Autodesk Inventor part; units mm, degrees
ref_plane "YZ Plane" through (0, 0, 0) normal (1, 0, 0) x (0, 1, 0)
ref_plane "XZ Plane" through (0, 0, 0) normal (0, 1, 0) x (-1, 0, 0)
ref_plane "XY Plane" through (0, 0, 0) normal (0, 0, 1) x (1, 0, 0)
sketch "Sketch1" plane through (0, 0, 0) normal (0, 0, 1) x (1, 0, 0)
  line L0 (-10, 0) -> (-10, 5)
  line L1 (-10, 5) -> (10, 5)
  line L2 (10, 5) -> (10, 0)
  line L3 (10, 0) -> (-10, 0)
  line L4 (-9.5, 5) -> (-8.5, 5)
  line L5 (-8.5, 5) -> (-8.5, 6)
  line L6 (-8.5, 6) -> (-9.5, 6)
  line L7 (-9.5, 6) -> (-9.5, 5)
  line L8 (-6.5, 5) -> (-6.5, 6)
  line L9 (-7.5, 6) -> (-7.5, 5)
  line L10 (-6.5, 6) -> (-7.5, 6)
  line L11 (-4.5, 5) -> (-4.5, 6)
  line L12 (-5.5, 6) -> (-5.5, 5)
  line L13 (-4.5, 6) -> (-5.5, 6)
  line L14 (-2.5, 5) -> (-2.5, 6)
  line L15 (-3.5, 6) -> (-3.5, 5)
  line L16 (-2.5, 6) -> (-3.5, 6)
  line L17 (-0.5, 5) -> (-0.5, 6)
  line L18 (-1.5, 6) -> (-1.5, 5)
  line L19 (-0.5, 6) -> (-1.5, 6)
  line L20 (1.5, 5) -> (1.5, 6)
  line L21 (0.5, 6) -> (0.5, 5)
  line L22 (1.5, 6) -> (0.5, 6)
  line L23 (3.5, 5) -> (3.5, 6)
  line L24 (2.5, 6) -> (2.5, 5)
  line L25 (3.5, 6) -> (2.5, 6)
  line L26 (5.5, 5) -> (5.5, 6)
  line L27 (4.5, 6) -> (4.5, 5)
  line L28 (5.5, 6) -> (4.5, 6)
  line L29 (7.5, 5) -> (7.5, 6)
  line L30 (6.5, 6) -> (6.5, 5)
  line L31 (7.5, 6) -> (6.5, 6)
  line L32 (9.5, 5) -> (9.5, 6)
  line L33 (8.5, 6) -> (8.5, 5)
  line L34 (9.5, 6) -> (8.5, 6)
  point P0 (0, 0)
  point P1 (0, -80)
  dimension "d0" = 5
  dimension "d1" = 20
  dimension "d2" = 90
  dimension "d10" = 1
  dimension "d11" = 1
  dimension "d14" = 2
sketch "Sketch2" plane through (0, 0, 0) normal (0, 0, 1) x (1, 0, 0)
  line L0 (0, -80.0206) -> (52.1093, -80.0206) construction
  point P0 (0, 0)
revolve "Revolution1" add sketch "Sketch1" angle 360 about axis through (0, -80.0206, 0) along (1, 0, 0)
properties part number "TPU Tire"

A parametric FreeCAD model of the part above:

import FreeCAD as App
import Part
import Sketcher
from FreeCAD import Vector

doc = App.newDocument("Part")
body = doc.addObject("PartDesign::Body", "Body")

# Sketch on XY plane
sketch1 = doc.addObject("Sketcher::SketchObject", "Sketch")
body.addObject(sketch1)
sketch1.AttachmentSupport = (doc.XY_Plane, [""])
sketch1.MapMode = "FlatFace"
sketch1.addGeometry([
    Part.LineSegment(Vector(-10, 5, 0), Vector(-10, 0, 0)),  # 0
    Part.LineSegment(Vector(-10, 0, 0), Vector(10, 0, 0)),  # 1
    Part.LineSegment(Vector(10, 0, 0), Vector(10, 5, 0)),  # 2
    Part.LineSegment(Vector(10, 5, 0), Vector(9.5, 5, 0)),  # 3
    Part.LineSegment(Vector(9.5, 5, 0), Vector(9.5, 6, 0)),  # 4
    Part.LineSegment(Vector(9.5, 6, 0), Vector(8.5, 6, 0)),  # 5
    Part.LineSegment(Vector(8.5, 6, 0), Vector(8.5, 5, 0)),  # 6
    Part.LineSegment(Vector(8.5, 5, 0), Vector(7.5, 5, 0)),  # 7
    Part.LineSegment(Vector(7.5, 5, 0), Vector(7.5, 6, 0)),  # 8
    Part.LineSegment(Vector(7.5, 6, 0), Vector(6.5, 6, 0)),  # 9
    Part.LineSegment(Vector(6.5, 6, 0), Vector(6.5, 5, 0)),  # 10
    Part.LineSegment(Vector(6.5, 5, 0), Vector(5.5, 5, 0)),  # 11
    Part.LineSegment(Vector(5.5, 5, 0), Vector(5.5, 6, 0)),  # 12
    Part.LineSegment(Vector(5.5, 6, 0), Vector(4.5, 6, 0)),  # 13
    Part.LineSegment(Vector(4.5, 6, 0), Vector(4.5, 5, 0)),  # 14
    Part.LineSegment(Vector(4.5, 5, 0), Vector(3.5, 5, 0)),  # 15
    Part.LineSegment(Vector(3.5, 5, 0), Vector(3.5, 6, 0)),  # 16
    Part.LineSegment(Vector(3.5, 6, 0), Vector(2.5, 6, 0)),  # 17
    Part.LineSegment(Vector(2.5, 6, 0), Vector(2.5, 5, 0)),  # 18
    Part.LineSegment(Vector(2.5, 5, 0), Vector(1.5, 5, 0)),  # 19
    Part.LineSegment(Vector(1.5, 5, 0), Vector(1.5, 6, 0)),  # 20
    Part.LineSegment(Vector(1.5, 6, 0), Vector(0.5, 6, 0)),  # 21
    Part.LineSegment(Vector(0.5, 6, 0), Vector(0.5, 5, 0)),  # 22
    Part.LineSegment(Vector(0.5, 5, 0), Vector(-0.5, 5, 0)),  # 23
    Part.LineSegment(Vector(-0.5, 5, 0), Vector(-0.5, 6, 0)),  # 24
    Part.LineSegment(Vector(-0.5, 6, 0), Vector(-1.5, 6, 0)),  # 25
    Part.LineSegment(Vector(-1.5, 6, 0), Vector(-1.5, 5, 0)),  # 26
    Part.LineSegment(Vector(-1.5, 5, 0), Vector(-2.5, 5, 0)),  # 27
    Part.LineSegment(Vector(-2.5, 5, 0), Vector(-2.5, 6, 0)),  # 28
    Part.LineSegment(Vector(-2.5, 6, 0), Vector(-3.5, 6, 0)),  # 29
    Part.LineSegment(Vector(-3.5, 6, 0), Vector(-3.5, 5, 0)),  # 30
    Part.LineSegment(Vector(-3.5, 5, 0), Vector(-4.5, 5, 0)),  # 31
    Part.LineSegment(Vector(-4.5, 5, 0), Vector(-4.5, 6, 0)),  # 32
    Part.LineSegment(Vector(-4.5, 6, 0), Vector(-5.5, 6, 0)),  # 33
    Part.LineSegment(Vector(-5.5, 6, 0), Vector(-5.5, 5, 0)),  # 34
    Part.LineSegment(Vector(-5.5, 5, 0), Vector(-6.5, 5, 0)),  # 35
    Part.LineSegment(Vector(-6.5, 5, 0), Vector(-6.5, 6, 0)),  # 36
    Part.LineSegment(Vector(-6.5, 6, 0), Vector(-7.5, 6, 0)),  # 37
    Part.LineSegment(Vector(-7.5, 6, 0), Vector(-7.5, 5, 0)),  # 38
    Part.LineSegment(Vector(-7.5, 5, 0), Vector(-8.5, 5, 0)),  # 39
    Part.LineSegment(Vector(-8.5, 5, 0), Vector(-8.5, 6, 0)),  # 40
    Part.LineSegment(Vector(-8.5, 6, 0), Vector(-9.5, 6, 0)),  # 41
    Part.LineSegment(Vector(-9.5, 6, 0), Vector(-9.5, 5, 0)),  # 42
    Part.LineSegment(Vector(-9.5, 5, 0), Vector(-10, 5, 0)),  # 43
], False)
sketch1.addGeometry(Part.LineSegment(Vector(-10, -80, 0), Vector(10, -80, 0)), True)  # axis
sketch1.addConstraint([
    Sketcher.Constraint("Coincident", 0, 2, 1, 1),
    Sketcher.Constraint("Coincident", 1, 2, 2, 1),
    Sketcher.Constraint("Coincident", 2, 2, 3, 1),
    Sketcher.Constraint("Coincident", 3, 2, 4, 1),
    Sketcher.Constraint("Coincident", 4, 2, 5, 1),
    Sketcher.Constraint("Coincident", 5, 2, 6, 1),
    Sketcher.Constraint("Coincident", 6, 2, 7, 1),
    Sketcher.Constraint("Coincident", 7, 2, 8, 1),
    Sketcher.Constraint("Coincident", 8, 2, 9, 1),
    Sketcher.Constraint("Coincident", 9, 2, 10, 1),
    Sketcher.Constraint("Coincident", 10, 2, 11, 1),
    Sketcher.Constraint("Coincident", 11, 2, 12, 1),
    Sketcher.Constraint("Coincident", 12, 2, 13, 1),
    Sketcher.Constraint("Coincident", 13, 2, 14, 1),
    Sketcher.Constraint("Coincident", 14, 2, 15, 1),
    Sketcher.Constraint("Coincident", 15, 2, 16, 1),
    Sketcher.Constraint("Coincident", 16, 2, 17, 1),
    Sketcher.Constraint("Coincident", 17, 2, 18, 1),
    Sketcher.Constraint("Coincident", 18, 2, 19, 1),
    Sketcher.Constraint("Coincident", 19, 2, 20, 1),
    Sketcher.Constraint("Coincident", 20, 2, 21, 1),
    Sketcher.Constraint("Coincident", 21, 2, 22, 1),
    Sketcher.Constraint("Coincident", 22, 2, 23, 1),
    Sketcher.Constraint("Coincident", 23, 2, 24, 1),
    Sketcher.Constraint("Coincident", 24, 2, 25, 1),
    Sketcher.Constraint("Coincident", 25, 2, 26, 1),
    Sketcher.Constraint("Coincident", 26, 2, 27, 1),
    Sketcher.Constraint("Coincident", 27, 2, 28, 1),
    Sketcher.Constraint("Coincident", 28, 2, 29, 1),
    Sketcher.Constraint("Coincident", 29, 2, 30, 1),
    Sketcher.Constraint("Coincident", 30, 2, 31, 1),
    Sketcher.Constraint("Coincident", 31, 2, 32, 1),
    Sketcher.Constraint("Coincident", 32, 2, 33, 1),
    Sketcher.Constraint("Coincident", 33, 2, 34, 1),
    Sketcher.Constraint("Coincident", 34, 2, 35, 1),
    Sketcher.Constraint("Coincident", 35, 2, 36, 1),
    Sketcher.Constraint("Coincident", 36, 2, 37, 1),
    Sketcher.Constraint("Coincident", 37, 2, 38, 1),
    Sketcher.Constraint("Coincident", 38, 2, 39, 1),
    Sketcher.Constraint("Coincident", 39, 2, 40, 1),
    Sketcher.Constraint("Coincident", 40, 2, 41, 1),
    Sketcher.Constraint("Coincident", 41, 2, 42, 1),
    Sketcher.Constraint("Coincident", 42, 2, 43, 1),
    Sketcher.Constraint("Coincident", 43, 2, 0, 1),
    Sketcher.Constraint("Vertical", 0),
    Sketcher.Constraint("Horizontal", 1),
    Sketcher.Constraint("Vertical", 2),
    Sketcher.Constraint("Horizontal", 3),
    Sketcher.Constraint("Vertical", 4),
    Sketcher.Constraint("Horizontal", 5),
    Sketcher.Constraint("Vertical", 6),
    Sketcher.Constraint("Horizontal", 7),
    Sketcher.Constraint("Vertical", 8),
    Sketcher.Constraint("Horizontal", 9),
    Sketcher.Constraint("Vertical", 10),
    Sketcher.Constraint("Horizontal", 11),
    Sketcher.Constraint("Vertical", 12),
    Sketcher.Constraint("Horizontal", 13),
    Sketcher.Constraint("Vertical", 14),
    Sketcher.Constraint("Horizontal", 15),
    Sketcher.Constraint("Vertical", 16),
    Sketcher.Constraint("Horizontal", 17),
    Sketcher.Constraint("Vertical", 18),
    Sketcher.Constraint("Horizontal", 19),
    Sketcher.Constraint("Vertical", 20),
    Sketcher.Constraint("Horizontal", 21),
    Sketcher.Constraint("Vertical", 22),
    Sketcher.Constraint("Horizontal", 23),
    Sketcher.Constraint("Vertical", 24),
    Sketcher.Constraint("Horizontal", 25),
    Sketcher.Constraint("Vertical", 26),
    Sketcher.Constraint("Horizontal", 27),
    Sketcher.Constraint("Vertical", 28),
    Sketcher.Constraint("Horizontal", 29),
    Sketcher.Constraint("Vertical", 30),
    Sketcher.Constraint("Horizontal", 31),
    Sketcher.Constraint("Vertical", 32),
    Sketcher.Constraint("Horizontal", 33),
    Sketcher.Constraint("Vertical", 34),
    Sketcher.Constraint("Horizontal", 35),
    Sketcher.Constraint("Vertical", 36),
    Sketcher.Constraint("Horizontal", 37),
    Sketcher.Constraint("Vertical", 38),
    Sketcher.Constraint("Horizontal", 39),
    Sketcher.Constraint("Vertical", 40),
    Sketcher.Constraint("Horizontal", 41),
    Sketcher.Constraint("Vertical", 42),
    Sketcher.Constraint("Horizontal", 43),
    Sketcher.Constraint("Horizontal", 44),
    Sketcher.Constraint("Symmetric", 0, 2, 1, 2, -1, 1),
    Sketcher.Constraint("Symmetric", 21, 2, 24, 2, -2),
    Sketcher.Constraint("Symmetric", 19, 2, 26, 2, -2),
    Sketcher.Constraint("Symmetric", 17, 2, 28, 2, -2),
    Sketcher.Constraint("Symmetric", 15, 2, 30, 2, -2),
    Sketcher.Constraint("Symmetric", 13, 2, 32, 2, -2),
    Sketcher.Constraint("Symmetric", 11, 2, 34, 2, -2),
    Sketcher.Constraint("Symmetric", 9, 2, 36, 2, -2),
    Sketcher.Constraint("Symmetric", 7, 2, 38, 2, -2),
    Sketcher.Constraint("Symmetric", 5, 2, 40, 2, -2),
    Sketcher.Constraint("Symmetric", 3, 2, 42, 2, -2),
    Sketcher.Constraint("Horizontal", 3, 2, 6, 2),
    Sketcher.Constraint("Horizontal", 5, 2, 8, 2),
    Sketcher.Constraint("Horizontal", 7, 2, 10, 2),
    Sketcher.Constraint("Horizontal", 9, 2, 12, 2),
    Sketcher.Constraint("Horizontal", 11, 2, 14, 2),
    Sketcher.Constraint("Horizontal", 13, 2, 16, 2),
    Sketcher.Constraint("Horizontal", 15, 2, 18, 2),
    Sketcher.Constraint("Horizontal", 17, 2, 20, 2),
    Sketcher.Constraint("Horizontal", 19, 2, 22, 2),
    Sketcher.Constraint("Vertical", 43, 2, 44, 1),
    Sketcher.Constraint("Vertical", 2, 2, 44, 2),
    Sketcher.Constraint("Equal", 5, 7),
    Sketcher.Constraint("Equal", 7, 9),
    Sketcher.Constraint("Equal", 9, 11),
    Sketcher.Constraint("Equal", 11, 13),
    Sketcher.Constraint("Equal", 13, 15),
    Sketcher.Constraint("Equal", 15, 17),
    Sketcher.Constraint("Equal", 17, 19),
    Sketcher.Constraint("Equal", 19, 21),
    Sketcher.Constraint("Equal", 21, 23),
    Sketcher.Constraint("Equal", 41, 4),
    Sketcher.Constraint("DistanceX", 1, 1, 1, 2, 20.0),
    Sketcher.Constraint("DistanceX", 5, 2, 5, 1, 1.0),
    Sketcher.Constraint("DistanceY", 0, 2, 0, 1, 5.0),
    Sketcher.Constraint("DistanceY", 44, 1, -1, 1, 80.0206),
])
revolution = doc.addObject("PartDesign::Revolution", "Revolution")
body.addObject(revolution)
revolution.Profile = sketch1
revolution.ReferenceAxis = (sketch1, ["Axis0"])
revolution.Angle = 360

doc.recompute()
